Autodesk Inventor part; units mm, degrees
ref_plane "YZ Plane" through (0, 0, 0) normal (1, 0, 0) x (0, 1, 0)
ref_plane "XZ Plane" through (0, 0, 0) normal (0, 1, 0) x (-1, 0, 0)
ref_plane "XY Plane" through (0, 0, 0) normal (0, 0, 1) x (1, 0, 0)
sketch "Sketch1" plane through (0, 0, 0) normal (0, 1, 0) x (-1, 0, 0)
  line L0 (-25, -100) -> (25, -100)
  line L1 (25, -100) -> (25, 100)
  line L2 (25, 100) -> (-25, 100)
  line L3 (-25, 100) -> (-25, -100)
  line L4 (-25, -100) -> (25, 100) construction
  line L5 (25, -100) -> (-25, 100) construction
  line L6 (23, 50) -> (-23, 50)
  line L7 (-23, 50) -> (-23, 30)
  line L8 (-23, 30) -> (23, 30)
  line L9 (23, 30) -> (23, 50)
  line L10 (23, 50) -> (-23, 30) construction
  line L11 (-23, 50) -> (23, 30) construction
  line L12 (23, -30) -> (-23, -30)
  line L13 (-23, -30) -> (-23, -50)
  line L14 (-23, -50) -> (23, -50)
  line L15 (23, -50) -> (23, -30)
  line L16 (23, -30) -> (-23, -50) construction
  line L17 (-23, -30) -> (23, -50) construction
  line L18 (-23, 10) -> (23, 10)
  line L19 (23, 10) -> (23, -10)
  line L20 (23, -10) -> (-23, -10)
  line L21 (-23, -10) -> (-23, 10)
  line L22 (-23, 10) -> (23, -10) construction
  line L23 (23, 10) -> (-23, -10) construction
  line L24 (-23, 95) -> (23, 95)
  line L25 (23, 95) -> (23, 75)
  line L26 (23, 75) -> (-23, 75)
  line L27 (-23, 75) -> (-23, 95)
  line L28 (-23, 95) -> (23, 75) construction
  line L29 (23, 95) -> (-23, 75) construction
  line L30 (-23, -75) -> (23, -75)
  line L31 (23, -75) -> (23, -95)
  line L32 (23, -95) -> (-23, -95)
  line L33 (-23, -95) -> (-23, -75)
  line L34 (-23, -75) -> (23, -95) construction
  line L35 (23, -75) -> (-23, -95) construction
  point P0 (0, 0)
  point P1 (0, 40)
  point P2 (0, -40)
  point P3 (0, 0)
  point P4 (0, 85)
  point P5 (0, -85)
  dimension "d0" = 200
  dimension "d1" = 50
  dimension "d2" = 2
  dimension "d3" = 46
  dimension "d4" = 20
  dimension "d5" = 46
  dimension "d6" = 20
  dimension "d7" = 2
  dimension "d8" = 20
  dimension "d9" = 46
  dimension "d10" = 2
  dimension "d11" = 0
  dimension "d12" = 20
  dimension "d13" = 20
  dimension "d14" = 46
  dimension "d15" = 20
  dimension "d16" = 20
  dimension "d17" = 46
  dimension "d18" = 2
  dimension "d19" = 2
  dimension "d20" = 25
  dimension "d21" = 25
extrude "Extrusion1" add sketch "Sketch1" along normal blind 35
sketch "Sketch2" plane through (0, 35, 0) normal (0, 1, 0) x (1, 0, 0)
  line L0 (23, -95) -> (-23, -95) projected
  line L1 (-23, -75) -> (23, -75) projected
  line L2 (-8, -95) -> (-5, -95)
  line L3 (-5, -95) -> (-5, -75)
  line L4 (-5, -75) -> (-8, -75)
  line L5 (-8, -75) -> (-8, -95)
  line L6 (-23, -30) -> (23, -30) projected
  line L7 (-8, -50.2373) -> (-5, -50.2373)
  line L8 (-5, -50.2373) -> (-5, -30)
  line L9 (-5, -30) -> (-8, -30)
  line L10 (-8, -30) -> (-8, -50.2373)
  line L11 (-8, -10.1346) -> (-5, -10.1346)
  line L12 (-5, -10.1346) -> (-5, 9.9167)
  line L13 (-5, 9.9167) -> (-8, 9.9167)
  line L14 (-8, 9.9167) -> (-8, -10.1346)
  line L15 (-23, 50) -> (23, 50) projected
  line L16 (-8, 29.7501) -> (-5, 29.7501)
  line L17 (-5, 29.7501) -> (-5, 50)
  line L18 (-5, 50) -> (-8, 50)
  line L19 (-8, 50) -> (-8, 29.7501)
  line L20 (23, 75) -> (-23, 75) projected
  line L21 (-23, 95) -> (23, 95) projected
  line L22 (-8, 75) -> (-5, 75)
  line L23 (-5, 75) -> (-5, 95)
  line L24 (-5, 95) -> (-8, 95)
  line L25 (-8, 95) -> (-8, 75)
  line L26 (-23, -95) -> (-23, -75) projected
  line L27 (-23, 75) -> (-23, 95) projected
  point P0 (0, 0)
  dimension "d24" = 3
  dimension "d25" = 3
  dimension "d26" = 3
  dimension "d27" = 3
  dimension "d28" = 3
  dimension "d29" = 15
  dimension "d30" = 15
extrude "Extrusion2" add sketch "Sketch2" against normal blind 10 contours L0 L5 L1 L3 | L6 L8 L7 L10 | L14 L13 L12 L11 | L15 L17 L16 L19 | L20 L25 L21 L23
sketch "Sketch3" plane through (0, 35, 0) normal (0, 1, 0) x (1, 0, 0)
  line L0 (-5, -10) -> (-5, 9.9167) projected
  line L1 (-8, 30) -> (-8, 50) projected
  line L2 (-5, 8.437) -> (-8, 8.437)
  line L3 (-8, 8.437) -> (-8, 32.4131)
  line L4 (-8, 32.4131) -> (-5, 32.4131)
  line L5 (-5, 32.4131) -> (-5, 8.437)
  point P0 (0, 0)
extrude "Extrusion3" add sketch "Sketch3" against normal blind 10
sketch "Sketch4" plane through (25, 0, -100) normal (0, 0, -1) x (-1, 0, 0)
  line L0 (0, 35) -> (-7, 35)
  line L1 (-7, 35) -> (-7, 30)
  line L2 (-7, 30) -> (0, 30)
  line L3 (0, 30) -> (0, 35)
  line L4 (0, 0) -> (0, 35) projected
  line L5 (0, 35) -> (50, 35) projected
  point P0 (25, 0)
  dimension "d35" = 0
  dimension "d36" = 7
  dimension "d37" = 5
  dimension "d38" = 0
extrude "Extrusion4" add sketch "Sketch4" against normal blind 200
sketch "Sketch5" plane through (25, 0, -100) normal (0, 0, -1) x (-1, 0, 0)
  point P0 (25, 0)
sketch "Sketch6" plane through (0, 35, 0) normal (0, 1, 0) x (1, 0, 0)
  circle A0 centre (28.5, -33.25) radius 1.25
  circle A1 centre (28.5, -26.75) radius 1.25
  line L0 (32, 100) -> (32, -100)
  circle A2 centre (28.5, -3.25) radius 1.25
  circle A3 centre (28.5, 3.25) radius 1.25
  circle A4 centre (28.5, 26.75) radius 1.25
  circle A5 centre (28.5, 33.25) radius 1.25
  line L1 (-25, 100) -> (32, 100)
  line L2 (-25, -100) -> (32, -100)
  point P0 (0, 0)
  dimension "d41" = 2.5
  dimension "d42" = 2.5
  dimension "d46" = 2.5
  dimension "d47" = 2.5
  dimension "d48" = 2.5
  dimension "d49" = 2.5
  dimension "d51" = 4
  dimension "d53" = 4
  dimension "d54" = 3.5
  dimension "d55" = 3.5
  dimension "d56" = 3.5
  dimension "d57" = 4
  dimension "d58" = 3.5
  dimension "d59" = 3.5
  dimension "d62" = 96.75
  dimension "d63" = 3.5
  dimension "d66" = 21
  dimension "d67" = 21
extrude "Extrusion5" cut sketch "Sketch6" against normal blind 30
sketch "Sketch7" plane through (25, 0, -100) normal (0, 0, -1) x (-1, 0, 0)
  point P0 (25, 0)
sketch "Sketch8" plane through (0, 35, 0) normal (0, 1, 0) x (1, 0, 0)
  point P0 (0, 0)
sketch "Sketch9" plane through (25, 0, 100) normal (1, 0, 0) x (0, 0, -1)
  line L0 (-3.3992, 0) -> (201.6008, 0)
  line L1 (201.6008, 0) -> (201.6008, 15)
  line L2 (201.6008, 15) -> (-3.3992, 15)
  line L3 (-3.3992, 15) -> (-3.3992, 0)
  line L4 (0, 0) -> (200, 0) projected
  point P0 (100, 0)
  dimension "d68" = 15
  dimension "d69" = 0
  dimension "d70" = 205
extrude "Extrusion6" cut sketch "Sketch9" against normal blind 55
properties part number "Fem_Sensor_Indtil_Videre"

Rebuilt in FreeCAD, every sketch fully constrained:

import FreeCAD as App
import Part
import Sketcher
Q = App.Units.Quantity

doc = App.newDocument("Part")
body = doc.addObject("PartDesign::Body", "Body")

# Sketch on XZ plane
sketch1 = body.newObject("Sketcher::SketchObject", "Sketch")
sketch1.AttachmentSupport = (doc.getObject("XZ_Plane"), [""])
sketch1.MapMode = "FlatFace"
sketch1.addGeometry([
    Part.LineSegment(App.Vector(25, 100, 0), App.Vector(25, -100, 0)),  # 0
    Part.LineSegment(App.Vector(25, -100, 0), App.Vector(-25, -100, 0)),  # 1
    Part.LineSegment(App.Vector(-25, -100, 0), App.Vector(-25, 100, 0)),  # 2
    Part.LineSegment(App.Vector(-25, 100, 0), App.Vector(25, 100, 0)),  # 3
    Part.LineSegment(App.Vector(23, -95, 0), App.Vector(23, -75, 0)),  # 4
    Part.LineSegment(App.Vector(23, -75, 0), App.Vector(-23, -75, 0)),  # 5
    Part.LineSegment(App.Vector(-23, -75, 0), App.Vector(-23, -95, 0)),  # 6
    Part.LineSegment(App.Vector(-23, -95, 0), App.Vector(23, -95, 0)),  # 7
    Part.LineSegment(App.Vector(23, -30, 0), App.Vector(-23, -30, 0)),  # 8
    Part.LineSegment(App.Vector(-23, -30, 0), App.Vector(-23, -50, 0)),  # 9
    Part.LineSegment(App.Vector(-23, -50, 0), App.Vector(23, -50, 0)),  # 10
    Part.LineSegment(App.Vector(23, -50, 0), App.Vector(23, -30, 0)),  # 11
    Part.LineSegment(App.Vector(23, -10, 0), App.Vector(23, 10, 0)),  # 12
    Part.LineSegment(App.Vector(23, 10, 0), App.Vector(-23, 10, 0)),  # 13
    Part.LineSegment(App.Vector(-23, 10, 0), App.Vector(-23, -10, 0)),  # 14
    Part.LineSegment(App.Vector(-23, -10, 0), App.Vector(23, -10, 0)),  # 15
    Part.LineSegment(App.Vector(23, 50, 0), App.Vector(-23, 50, 0)),  # 16
    Part.LineSegment(App.Vector(-23, 50, 0), App.Vector(-23, 30, 0)),  # 17
    Part.LineSegment(App.Vector(-23, 30, 0), App.Vector(23, 30, 0)),  # 18
    Part.LineSegment(App.Vector(23, 30, 0), App.Vector(23, 50, 0)),  # 19
    Part.LineSegment(App.Vector(23, 75, 0), App.Vector(23, 95, 0)),  # 20
    Part.LineSegment(App.Vector(23, 95, 0), App.Vector(-23, 95, 0)),  # 21
    Part.LineSegment(App.Vector(-23, 95, 0), App.Vector(-23, 75, 0)),  # 22
    Part.LineSegment(App.Vector(-23, 75, 0), App.Vector(23, 75, 0)),  # 23
], False)
sketch1.addConstraint([
    Sketcher.Constraint("Coincident", 0, 2, 1, 1),
    Sketcher.Constraint("Coincident", 1, 2, 2, 1),
    Sketcher.Constraint("Coincident", 2, 2, 3, 1),
    Sketcher.Constraint("Coincident", 3, 2, 0, 1),
    Sketcher.Constraint("Coincident", 4, 2, 5, 1),
    Sketcher.Constraint("Coincident", 5, 2, 6, 1),
    Sketcher.Constraint("Coincident", 6, 2, 7, 1),
    Sketcher.Constraint("Coincident", 7, 2, 4, 1),
    Sketcher.Constraint("Coincident", 8, 2, 9, 1),
    Sketcher.Constraint("Coincident", 9, 2, 10, 1),
    Sketcher.Constraint("Coincident", 10, 2, 11, 1),
    Sketcher.Constraint("Coincident", 11, 2, 8, 1),
    Sketcher.Constraint("Coincident", 12, 2, 13, 1),
    Sketcher.Constraint("Coincident", 13, 2, 14, 1),
    Sketcher.Constraint("Coincident", 14, 2, 15, 1),
    Sketcher.Constraint("Coincident", 15, 2, 12, 1),
    Sketcher.Constraint("Coincident", 16, 2, 17, 1),
    Sketcher.Constraint("Coincident", 17, 2, 18, 1),
    Sketcher.Constraint("Coincident", 18, 2, 19, 1),
    Sketcher.Constraint("Coincident", 19, 2, 16, 1),
    Sketcher.Constraint("Coincident", 20, 2, 21, 1),
    Sketcher.Constraint("Coincident", 21, 2, 22, 1),
    Sketcher.Constraint("Coincident", 22, 2, 23, 1),
    Sketcher.Constraint("Coincident", 23, 2, 20, 1),
    Sketcher.Constraint("Vertical", 0),
    Sketcher.Constraint("Horizontal", 1),
    Sketcher.Constraint("Vertical", 2),
    Sketcher.Constraint("Horizontal", 3),
    Sketcher.Constraint("Vertical", 4),
    Sketcher.Constraint("Horizontal", 5),
    Sketcher.Constraint("Vertical", 6),
    Sketcher.Constraint("Horizontal", 7),
    Sketcher.Constraint("Horizontal", 8),
    Sketcher.Constraint("Vertical", 9),
    Sketcher.Constraint("Horizontal", 10),
    Sketcher.Constraint("Vertical", 11),
    Sketcher.Constraint("Vertical", 12),
    Sketcher.Constraint("Horizontal", 13),
    Sketcher.Constraint("Vertical", 14),
    Sketcher.Constraint("Horizontal", 15),
    Sketcher.Constraint("Horizontal", 16),
    Sketcher.Constraint("Vertical", 17),
    Sketcher.Constraint("Horizontal", 18),
    Sketcher.Constraint("Vertical", 19),
    Sketcher.Constraint("Vertical", 20),
    Sketcher.Constraint("Horizontal", 21),
    Sketcher.Constraint("Vertical", 22),
    Sketcher.Constraint("Horizontal", 23),
    Sketcher.Constraint("Symmetric", 0, 2, 2, 2, -1, 1),
    Sketcher.Constraint("Symmetric", 12, 2, 14, 2, -1, 1),
    Sketcher.Constraint("Symmetric", 10, 2, 16, 2, -1, 1),
    Sketcher.Constraint("Symmetric", 8, 2, 18, 2, -1, 1),
    Sketcher.Constraint("Symmetric", 6, 2, 20, 2, -1, 1),
    Sketcher.Constraint("Symmetric", 4, 2, 22, 2, -1, 1),
    Sketcher.Constraint("Vertical", 6, 2, 8, 2),
    Sketcher.Constraint("Vertical", 7, 2, 10, 2),
    Sketcher.Constraint("Vertical", 11, 2, 12, 2),
    Sketcher.Constraint("Vertical", 9, 2, 13, 2),
    Sketcher.Constraint("Equal", 6, 9),
    Sketcher.Constraint("Equal", 11, 12),
    Sketcher.Constraint("DistanceX", 1, 2, 1, 1, Q("50 mm")),
    Sketcher.Constraint("DistanceX", 5, 2, 5, 1, Q("46 mm")),
    Sketcher.Constraint("DistanceY", 0, 2, 0, 1, Q("200 mm")),
    Sketcher.Constraint("DistanceY", 4, 1, 4, 2, Q("20 mm")),
    Sketcher.Constraint("DistanceY", 9, 2, -1, 1, Q("50 mm")),
    Sketcher.Constraint("DistanceY", 0, 2, 4, 2, Q("25 mm")),
])
pad1 = body.newObject("PartDesign::Pad", "Pad")
pad1.Profile = sketch1
pad1.Length = 35
pad1.Reversed = True

# Sketch on XZ plane
sketch2 = body.newObject("Sketcher::SketchObject", "Sketch001")
sketch2.AttachmentSupport = (doc.getObject("XZ_Plane"), [""])
sketch2.MapMode = "FlatFace"
sketch2.AttachmentOffset = App.Placement(App.Vector(0, 0, -35), App.Rotation())
sketch2.addGeometry([
    Part.LineSegment(App.Vector(-8, 95, 0), App.Vector(-5, 95, 0)),  # 0
    Part.LineSegment(App.Vector(-5, 95, 0), App.Vector(-5, 75, 0)),  # 1
    Part.LineSegment(App.Vector(-5, 75, 0), App.Vector(-8, 75, 0)),  # 2
    Part.LineSegment(App.Vector(-8, 75, 0), App.Vector(-8, 95, 0)),  # 3
    Part.LineSegment(App.Vector(-5, 30, 0), App.Vector(-8, 30, 0)),  # 4
    Part.LineSegment(App.Vector(-8, 30, 0), App.Vector(-8, 50.2, 0)),  # 5
    Part.LineSegment(App.Vector(-8, 50.2, 0), App.Vector(-5, 50.2, 0)),  # 6
    Part.LineSegment(App.Vector(-5, 50.2, 0), App.Vector(-5, 30, 0)),  # 7
    Part.LineSegment(App.Vector(-8, -9.9, 0), App.Vector(-8, 10.1, 0)),  # 8
    Part.LineSegment(App.Vector(-8, 10.1, 0), App.Vector(-5, 10.1, 0)),  # 9
    Part.LineSegment(App.Vector(-5, 10.1, 0), App.Vector(-5, -9.9, 0)),  # 10
    Part.LineSegment(App.Vector(-5, -9.9, 0), App.Vector(-8, -9.9, 0)),  # 11
    Part.LineSegment(App.Vector(-5, -50, 0), App.Vector(-8, -50, 0)),  # 12
    Part.LineSegment(App.Vector(-8, -50, 0), App.Vector(-8, -29.8, 0)),  # 13
    Part.LineSegment(App.Vector(-8, -29.8, 0), App.Vector(-5, -29.8, 0)),  # 14
    Part.LineSegment(App.Vector(-5, -29.8, 0), App.Vector(-5, -50, 0)),  # 15
    Part.LineSegment(App.Vector(-8, -75, 0), App.Vector(-5, -75, 0)),  # 16
    Part.LineSegment(App.Vector(-5, -75, 0), App.Vector(-5, -95, 0)),  # 17
    Part.LineSegment(App.Vector(-5, -95, 0), App.Vector(-8, -95, 0)),  # 18
    Part.LineSegment(App.Vector(-8, -95, 0), App.Vector(-8, -75, 0)),  # 19
], False)
sketch2.addConstraint([
    Sketcher.Constraint("Coincident", 0, 2, 1, 1),
    Sketcher.Constraint("Coincident", 1, 2, 2, 1),
    Sketcher.Constraint("Coincident", 2, 2, 3, 1),
    Sketcher.Constraint("Coincident", 3, 2, 0, 1),
    Sketcher.Constraint("Coincident", 4, 2, 5, 1),
    Sketcher.Constraint("Coincident", 5, 2, 6, 1),
    Sketcher.Constraint("Coincident", 6, 2, 7, 1),
    Sketcher.Constraint("Coincident", 7, 2, 4, 1),
    Sketcher.Constraint("Coincident", 8, 2, 9, 1),
    Sketcher.Constraint("Coincident", 9, 2, 10, 1),
    Sketcher.Constraint("Coincident", 10, 2, 11, 1),
    Sketcher.Constraint("Coincident", 11, 2, 8, 1),
    Sketcher.Constraint("Coincident", 12, 2, 13, 1),
    Sketcher.Constraint("Coincident", 13, 2, 14, 1),
    Sketcher.Constraint("Coincident", 14, 2, 15, 1),
    Sketcher.Constraint("Coincident", 15, 2, 12, 1),
    Sketcher.Constraint("Coincident", 16, 2, 17, 1),
    Sketcher.Constraint("Coincident", 17, 2, 18, 1),
    Sketcher.Constraint("Coincident", 18, 2, 19, 1),
    Sketcher.Constraint("Coincident", 19, 2, 16, 1),
    Sketcher.Constraint("Horizontal", 0),
    Sketcher.Constraint("Vertical", 1),
    Sketcher.Constraint("Horizontal", 2),
    Sketcher.Constraint("Vertical", 3),
    Sketcher.Constraint("Horizontal", 4),
    Sketcher.Constraint("Vertical", 5),
    Sketcher.Constraint("Horizontal", 6),
    Sketcher.Constraint("Vertical", 7),
    Sketcher.Constraint("Vertical", 8),
    Sketcher.Constraint("Horizontal", 9),
    Sketcher.Constraint("Vertical", 10),
    Sketcher.Constraint("Horizontal", 11),
    Sketcher.Constraint("Horizontal", 12),
    Sketcher.Constraint("Vertical", 13),
    Sketcher.Constraint("Horizontal", 14),
    Sketcher.Constraint("Vertical", 15),
    Sketcher.Constraint("Horizontal", 16),
    Sketcher.Constraint("Vertical", 17),
    Sketcher.Constraint("Horizontal", 18),
    Sketcher.Constraint("Vertical", 19),
    Sketcher.Constraint("Symmetric", 1, 2, 16, 2, -1),
    Sketcher.Constraint("Symmetric", 3, 2, 18, 2, -1),
    Sketcher.Constraint("Vertical", 3, 2, 4, 2),
    Sketcher.Constraint("Vertical", 1, 2, 6, 2),
    Sketcher.Constraint("Vertical", 5, 2, 8, 2),
    Sketcher.Constraint("Vertical", 7, 2, 9, 2),
    Sketcher.Constraint("Vertical", 11, 2, 12, 2),
    Sketcher.Constraint("Vertical", 10, 2, 14, 2),
    Sketcher.Constraint("DistanceX", 0, 1, 0, 2, Q("3 mm")),
    Sketcher.Constraint("DistanceY", 1, 2, 1, 1, Q("20 mm")),
    Sketcher.Constraint("DistanceX", 0, 2, -1, 1, Q("5 mm")),
    Sketcher.Constraint("DistanceY", -1, 1, 0, 2, Q("95 mm")),
    Sketcher.Constraint("DistanceY", -1, 1, 4, 2, Q("30 mm")),
    Sketcher.Constraint("DistanceY", 12, 2, -1, 1, Q("50 mm")),
    Sketcher.Constraint("DistanceY", 13, 1, 13, 2, Q("20.25 mm")),
    Sketcher.Constraint("DistanceY", 5, 1, 5, 2, Q("20.2373 mm")),
    Sketcher.Constraint("DistanceY", 8, 1, 8, 2, Q("20.0513 mm")),
    Sketcher.Constraint("DistanceY", 10, 2, 6, 2, Q("60.154 mm")),
])
pad2 = body.newObject("PartDesign::Pad", "Pad001")
pad2.Profile = sketch2
pad2.Length = 10

# Sketch on XZ plane
sketch3 = body.newObject("Sketcher::SketchObject", "Sketch002")
sketch3.AttachmentSupport = (doc.getObject("XZ_Plane"), [""])
sketch3.MapMode = "FlatFace"
sketch3.AttachmentOffset = App.Placement(App.Vector(0, 0, -35), App.Rotation())
sketch3.addGeometry([
    Part.LineSegment(App.Vector(-8, -8.4, 0), App.Vector(-5, -8.4, 0)),
    Part.LineSegment(App.Vector(-5, -8.4, 0), App.Vector(-5, -32.4, 0)),
    Part.LineSegment(App.Vector(-5, -32.4, 0), App.Vector(-8, -32.4, 0)),
    Part.LineSegment(App.Vector(-8, -32.4, 0), App.Vector(-8, -8.4, 0)),
], False)
sketch3.addConstraint([
    Sketcher.Constraint("Coincident", 0, 2, 1, 1),
    Sketcher.Constraint("Coincident", 1, 2, 2, 1),
    Sketcher.Constraint("Coincident", 2, 2, 3, 1),
    Sketcher.Constraint("Coincident", 3, 2, 0, 1),
    Sketcher.Constraint("Horizontal", 0),
    Sketcher.Constraint("Vertical", 1),
    Sketcher.Constraint("Horizontal", 2),
    Sketcher.Constraint("Vertical", 3),
    Sketcher.Constraint("DistanceX", 0, 1, 0, 2, Q("3 mm")),
    Sketcher.Constraint("DistanceX", 0, 2, -1, 1, Q("5 mm")),
    Sketcher.Constraint("DistanceY", 1, 2, 1, 1, Q("23.976 mm")),
    Sketcher.Constraint("DistanceY", 0, 2, -1, 1, Q("8.437 mm")),
])
pad3 = body.newObject("PartDesign::Pad", "Pad002")
pad3.Profile = sketch3
pad3.Length = 10

# Sketch on XY plane
sketch4 = body.newObject("Sketcher::SketchObject", "Sketch003")
sketch4.AttachmentSupport = (doc.getObject("XY_Plane"), [""])
sketch4.MapMode = "FlatFace"
sketch4.AttachmentOffset = App.Placement(App.Vector(0, 0, -100), App.Rotation())
sketch4.addGeometry([
    Part.LineSegment(App.Vector(25, 30, 0), App.Vector(25, 35, 0)),
    Part.LineSegment(App.Vector(25, 35, 0), App.Vector(32, 35, 0)),
    Part.LineSegment(App.Vector(32, 35, 0), App.Vector(32, 30, 0)),
    Part.LineSegment(App.Vector(32, 30, 0), App.Vector(25, 30, 0)),
], False)
sketch4.addConstraint([
    Sketcher.Constraint("Coincident", 0, 2, 1, 1),
    Sketcher.Constraint("Coincident", 1, 2, 2, 1),
    Sketcher.Constraint("Coincident", 2, 2, 3, 1),
    Sketcher.Constraint("Coincident", 3, 2, 0, 1),
    Sketcher.Constraint("Vertical", 0),
    Sketcher.Constraint("Horizontal", 1),
    Sketcher.Constraint("Vertical", 2),
    Sketcher.Constraint("Horizontal", 3),
    Sketcher.Constraint("DistanceX", 1, 1, 1, 2, Q("7 mm")),
    Sketcher.Constraint("DistanceY", 0, 1, 0, 2, Q("5 mm")),
    Sketcher.Constraint("DistanceX", -1, 1, 0, 2, Q("25 mm")),
    Sketcher.Constraint("DistanceY", -1, 1, 0, 2, Q("35 mm")),
])
pad4 = body.newObject("PartDesign::Pad", "Pad003")
pad4.Profile = sketch4
pad4.Length = 200

# Sketch on XZ plane
sketch5 = body.newObject("Sketcher::SketchObject", "Sketch004")
sketch5.AttachmentSupport = (doc.getObject("XZ_Plane"), [""])
sketch5.MapMode = "FlatFace"
sketch5.AttachmentOffset = App.Placement(App.Vector(0, 0, -35), App.Rotation())
sketch5.addGeometry([
    Part.Circle(App.Vector(28.5, 33.2, 0), App.Vector(0, 0, 1), 1.2),  # 0
    Part.Circle(App.Vector(28.5, 26.8, 0), App.Vector(0, 0, 1), 1.2),  # 1
    Part.Circle(App.Vector(28.5, 3.2, 0), App.Vector(0, 0, 1), 1.2),  # 2
    Part.Circle(App.Vector(28.5, -3.2, 0), App.Vector(0, 0, 1), 1.2),  # 3
    Part.Circle(App.Vector(28.5, -26.8, 0), App.Vector(0, 0, 1), 1.2),  # 4
    Part.Circle(App.Vector(28.5, -33.2, 0), App.Vector(0, 0, 1), 1.2),  # 5
], False)
sketch5.addConstraint([
    Sketcher.Constraint("Equal", 0, 1),
    Sketcher.Constraint("Equal", 1, 2),
    Sketcher.Constraint("Equal", 2, 3),
    Sketcher.Constraint("Equal", 3, 4),
    Sketcher.Constraint("Equal", 4, 5),
    Sketcher.Constraint("Symmetric", 2, 3, 3, 3, -1),
    Sketcher.Constraint("Symmetric", 1, 3, 4, 3, -1),
    Sketcher.Constraint("Symmetric", 0, 3, 5, 3, -1),
    Sketcher.Constraint("Vertical", 0, 3, 1, 3),
    Sketcher.Constraint("Vertical", 1, 3, 2, 3),
    Sketcher.Constraint("Diameter", 0, Q("2.5 mm")),
    Sketcher.Constraint("DistanceY", 2, 3, 0, 3, Q("30 mm")),
    Sketcher.Constraint("DistanceY", 3, 3, 1, 3, Q("30 mm")),
    Sketcher.Constraint("DistanceX", -1, 1, 0, 3, Q("28.5 mm")),
    Sketcher.Constraint("DistanceY", 1, 3, 0, 3, Q("6.5 mm")),
])
pocket1 = body.newObject("PartDesign::Pocket", "Pocket")
pocket1.Profile = sketch5
pocket1.Length = 30
pocket1.Reversed = True

# Sketch on YZ plane
sketch6 = body.newObject("Sketcher::SketchObject", "Sketch005")
sketch6.AttachmentSupport = (doc.getObject("YZ_Plane"), [""])
sketch6.MapMode = "FlatFace"
sketch6.AttachmentOffset = App.Placement(App.Vector(0, 0, 25), App.Rotation())
sketch6.addGeometry([
    Part.LineSegment(App.Vector(15, 103, 0), App.Vector(0, 103, 0)),
    Part.LineSegment(App.Vector(0, 103, 0), App.Vector(0, -102, 0)),
    Part.LineSegment(App.Vector(0, -102, 0), App.Vector(15, -102, 0)),
    Part.LineSegment(App.Vector(15, -102, 0), App.Vector(15, 103, 0)),
], False)
sketch6.addConstraint([
    Sketcher.Constraint("Coincident", 0, 2, 1, 1),
    Sketcher.Constraint("Coincident", 1, 2, 2, 1),
    Sketcher.Constraint("Coincident", 2, 2, 3, 1),
    Sketcher.Constraint("Coincident", 3, 2, 0, 1),
    Sketcher.Constraint("Horizontal", 0),
    Sketcher.Constraint("Vertical", 1),
    Sketcher.Constraint("Horizontal", 2),
    Sketcher.Constraint("Vertical", 3),
    Sketcher.Constraint("PointOnObject", 0, 2, -2),
    Sketcher.Constraint("DistanceX", 0, 2, 0, 1, Q("15 mm")),
    Sketcher.Constraint("DistanceY", 1, 2, 1, 1, Q("205 mm")),
    Sketcher.Constraint("DistanceY", -1, 1, 0, 2, Q("103.3992 mm")),
])
pocket2 = body.newObject("PartDesign::Pocket", "Pocket001")
pocket2.Profile = sketch6
pocket2.Length = 55

doc.recompute()
